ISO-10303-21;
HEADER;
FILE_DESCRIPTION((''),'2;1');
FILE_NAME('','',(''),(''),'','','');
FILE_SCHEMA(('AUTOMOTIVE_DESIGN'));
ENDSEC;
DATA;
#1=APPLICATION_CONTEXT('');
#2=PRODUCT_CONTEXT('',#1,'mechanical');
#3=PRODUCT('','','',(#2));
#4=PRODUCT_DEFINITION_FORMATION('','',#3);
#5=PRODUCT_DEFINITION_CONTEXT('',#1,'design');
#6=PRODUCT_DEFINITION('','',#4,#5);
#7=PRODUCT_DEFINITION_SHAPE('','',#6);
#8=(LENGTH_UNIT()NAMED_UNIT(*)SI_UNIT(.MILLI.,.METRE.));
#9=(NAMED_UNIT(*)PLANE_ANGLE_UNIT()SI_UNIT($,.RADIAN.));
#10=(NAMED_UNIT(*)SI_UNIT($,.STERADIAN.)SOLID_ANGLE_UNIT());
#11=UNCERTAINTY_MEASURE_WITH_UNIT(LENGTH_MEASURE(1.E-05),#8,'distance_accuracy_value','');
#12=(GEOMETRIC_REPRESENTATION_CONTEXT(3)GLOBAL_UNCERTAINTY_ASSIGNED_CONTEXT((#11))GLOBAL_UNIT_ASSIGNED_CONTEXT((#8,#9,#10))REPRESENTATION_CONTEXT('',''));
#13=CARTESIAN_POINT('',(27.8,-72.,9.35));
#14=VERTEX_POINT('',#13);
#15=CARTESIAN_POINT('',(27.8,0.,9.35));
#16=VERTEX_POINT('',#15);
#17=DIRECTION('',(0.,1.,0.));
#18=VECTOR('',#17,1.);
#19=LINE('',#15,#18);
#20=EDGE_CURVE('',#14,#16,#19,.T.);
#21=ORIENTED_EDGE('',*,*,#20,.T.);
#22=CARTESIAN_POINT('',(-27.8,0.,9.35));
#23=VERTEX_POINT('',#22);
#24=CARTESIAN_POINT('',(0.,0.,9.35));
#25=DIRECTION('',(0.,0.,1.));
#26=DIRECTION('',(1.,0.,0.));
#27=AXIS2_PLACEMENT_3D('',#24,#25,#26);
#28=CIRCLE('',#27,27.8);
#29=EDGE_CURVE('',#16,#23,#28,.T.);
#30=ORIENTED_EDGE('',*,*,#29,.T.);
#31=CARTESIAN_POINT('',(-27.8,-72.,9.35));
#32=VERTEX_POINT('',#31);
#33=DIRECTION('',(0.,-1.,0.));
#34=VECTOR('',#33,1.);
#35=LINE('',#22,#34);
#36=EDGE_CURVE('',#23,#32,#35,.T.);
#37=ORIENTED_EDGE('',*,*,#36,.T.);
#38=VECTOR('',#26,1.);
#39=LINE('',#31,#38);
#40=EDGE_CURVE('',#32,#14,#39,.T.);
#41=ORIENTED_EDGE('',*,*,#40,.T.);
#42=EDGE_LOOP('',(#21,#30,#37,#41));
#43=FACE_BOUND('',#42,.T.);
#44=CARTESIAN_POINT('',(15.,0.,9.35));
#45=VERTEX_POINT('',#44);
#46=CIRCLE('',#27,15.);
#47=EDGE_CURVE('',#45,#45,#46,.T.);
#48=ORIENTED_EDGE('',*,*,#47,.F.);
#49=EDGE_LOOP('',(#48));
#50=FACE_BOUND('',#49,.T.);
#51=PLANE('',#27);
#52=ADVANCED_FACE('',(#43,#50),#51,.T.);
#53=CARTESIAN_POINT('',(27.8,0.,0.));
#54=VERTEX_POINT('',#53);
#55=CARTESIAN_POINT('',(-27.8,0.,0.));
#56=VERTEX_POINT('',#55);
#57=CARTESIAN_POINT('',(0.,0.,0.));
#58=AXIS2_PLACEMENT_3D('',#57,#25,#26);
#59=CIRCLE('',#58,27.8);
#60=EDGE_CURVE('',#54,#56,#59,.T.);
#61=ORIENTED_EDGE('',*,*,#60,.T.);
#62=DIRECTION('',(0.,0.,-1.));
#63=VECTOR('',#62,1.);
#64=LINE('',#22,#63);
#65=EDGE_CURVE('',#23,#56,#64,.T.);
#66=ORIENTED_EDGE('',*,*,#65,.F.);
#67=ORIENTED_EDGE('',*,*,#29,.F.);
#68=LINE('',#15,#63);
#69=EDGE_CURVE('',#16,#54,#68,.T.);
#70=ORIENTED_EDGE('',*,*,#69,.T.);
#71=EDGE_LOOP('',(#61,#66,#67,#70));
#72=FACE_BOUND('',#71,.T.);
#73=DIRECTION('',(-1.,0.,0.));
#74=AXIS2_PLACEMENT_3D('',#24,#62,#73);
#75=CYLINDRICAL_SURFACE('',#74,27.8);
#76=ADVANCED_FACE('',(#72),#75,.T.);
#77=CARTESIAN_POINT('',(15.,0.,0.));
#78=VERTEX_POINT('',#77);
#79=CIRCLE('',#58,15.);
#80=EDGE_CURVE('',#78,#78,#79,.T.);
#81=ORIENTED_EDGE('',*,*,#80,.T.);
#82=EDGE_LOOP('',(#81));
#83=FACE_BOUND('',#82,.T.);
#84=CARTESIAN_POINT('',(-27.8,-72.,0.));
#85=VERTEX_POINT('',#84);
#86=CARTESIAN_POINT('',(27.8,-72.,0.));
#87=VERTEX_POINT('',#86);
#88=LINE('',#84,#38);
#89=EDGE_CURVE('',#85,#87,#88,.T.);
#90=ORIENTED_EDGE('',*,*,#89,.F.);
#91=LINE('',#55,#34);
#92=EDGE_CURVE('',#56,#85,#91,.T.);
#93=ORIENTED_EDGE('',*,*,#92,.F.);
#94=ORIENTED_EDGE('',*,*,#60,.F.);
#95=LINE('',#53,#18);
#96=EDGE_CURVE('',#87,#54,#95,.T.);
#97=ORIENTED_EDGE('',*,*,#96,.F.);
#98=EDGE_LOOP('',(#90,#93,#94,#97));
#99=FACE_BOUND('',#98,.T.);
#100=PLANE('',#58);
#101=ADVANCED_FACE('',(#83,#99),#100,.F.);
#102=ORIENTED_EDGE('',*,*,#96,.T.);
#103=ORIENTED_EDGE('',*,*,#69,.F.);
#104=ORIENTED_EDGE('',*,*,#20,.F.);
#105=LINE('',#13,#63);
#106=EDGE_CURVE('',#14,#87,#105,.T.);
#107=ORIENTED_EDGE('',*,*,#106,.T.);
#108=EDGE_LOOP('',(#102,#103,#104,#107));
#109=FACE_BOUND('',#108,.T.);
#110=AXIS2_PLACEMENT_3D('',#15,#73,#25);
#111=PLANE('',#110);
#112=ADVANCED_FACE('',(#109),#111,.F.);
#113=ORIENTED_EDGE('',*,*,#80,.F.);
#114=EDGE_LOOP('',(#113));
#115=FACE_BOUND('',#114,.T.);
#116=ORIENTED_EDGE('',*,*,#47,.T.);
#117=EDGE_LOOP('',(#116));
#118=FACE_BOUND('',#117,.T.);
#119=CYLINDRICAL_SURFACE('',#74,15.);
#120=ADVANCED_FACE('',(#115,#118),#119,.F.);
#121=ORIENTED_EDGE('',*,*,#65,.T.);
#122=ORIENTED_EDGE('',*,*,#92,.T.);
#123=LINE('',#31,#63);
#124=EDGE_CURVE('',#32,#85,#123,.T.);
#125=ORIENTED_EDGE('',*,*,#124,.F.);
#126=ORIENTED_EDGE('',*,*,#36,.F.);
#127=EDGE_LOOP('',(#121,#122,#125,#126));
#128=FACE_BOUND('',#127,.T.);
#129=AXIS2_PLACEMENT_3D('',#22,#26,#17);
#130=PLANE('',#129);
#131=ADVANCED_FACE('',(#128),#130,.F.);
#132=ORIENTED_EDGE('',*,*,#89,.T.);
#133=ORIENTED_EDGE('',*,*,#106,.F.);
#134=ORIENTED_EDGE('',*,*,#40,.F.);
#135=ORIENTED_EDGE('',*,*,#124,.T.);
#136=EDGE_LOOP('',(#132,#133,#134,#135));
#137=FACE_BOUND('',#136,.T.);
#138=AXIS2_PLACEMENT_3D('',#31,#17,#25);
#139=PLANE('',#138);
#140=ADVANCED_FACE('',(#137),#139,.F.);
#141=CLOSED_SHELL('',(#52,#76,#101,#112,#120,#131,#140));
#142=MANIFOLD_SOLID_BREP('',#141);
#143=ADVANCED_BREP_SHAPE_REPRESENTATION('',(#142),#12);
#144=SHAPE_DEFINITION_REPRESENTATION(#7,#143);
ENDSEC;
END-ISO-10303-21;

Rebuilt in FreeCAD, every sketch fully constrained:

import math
import FreeCAD as App
import Part
import Sketcher

doc = App.newDocument("Part")
body = doc.addObject("PartDesign::Body", "Body")

# Sketch on XY plane
sketch1 = body.newObject("Sketcher::SketchObject", "Sketch")
sketch1.AttachmentSupport = (doc.getObject("XY_Plane"), [""])
sketch1.MapMode = "FlatFace"
sketch1.addGeometry(Part.LineSegment(App.Vector(-28, 0, 0), App.Vector(-28, -72, 0)), False)
sketch1.addGeometry(Part.LineSegment(App.Vector(-28, -72, 0), App.Vector(28, -72, 0)), False)
sketch1.addGeometry(Part.LineSegment(App.Vector(28, -72, 0), App.Vector(28, 0, 0)), False)
sketch1.addGeometry(Part.ArcOfCircle(Part.Circle(App.Vector(0, 0, 0), App.Vector(0, 0, 1), 28), math.radians(0), math.radians(180)), False)
sketch1.addGeometry(Part.Circle(App.Vector(0, 0, 0), App.Vector(0, 0, 1), 15), False)
sketch1.addConstraint(Sketcher.Constraint("Coincident", 0, 2, 1, 1))
sketch1.addConstraint(Sketcher.Constraint("Coincident", 1, 2, 2, 1))
sketch1.addConstraint(Sketcher.Constraint("Tangent", 2, 2, 3, 1))
sketch1.addConstraint(Sketcher.Constraint("Tangent", 3, 2, 0, 1))
sketch1.addConstraint(Sketcher.Constraint("Vertical", 0))
sketch1.addConstraint(Sketcher.Constraint("Horizontal", 1))
sketch1.addConstraint(Sketcher.Constraint("Vertical", 2))
sketch1.addConstraint(Sketcher.Constraint("Coincident", 3, 3, -1, 1))
sketch1.addConstraint(Sketcher.Constraint("Coincident", 4, 3, -1, 1))
sketch1.addConstraint(Sketcher.Constraint("Diameter", 4, 30.0))
sketch1.addConstraint(Sketcher.Constraint("Radius", 3, 27.8))
sketch1.addConstraint(Sketcher.Constraint("DistanceY", 0, 2, 0, 1, 72.0))
pad1 = body.newObject("PartDesign::Pad", "Pad")
pad1.Profile = sketch1
pad1.Length = 9.35

doc.recompute()
